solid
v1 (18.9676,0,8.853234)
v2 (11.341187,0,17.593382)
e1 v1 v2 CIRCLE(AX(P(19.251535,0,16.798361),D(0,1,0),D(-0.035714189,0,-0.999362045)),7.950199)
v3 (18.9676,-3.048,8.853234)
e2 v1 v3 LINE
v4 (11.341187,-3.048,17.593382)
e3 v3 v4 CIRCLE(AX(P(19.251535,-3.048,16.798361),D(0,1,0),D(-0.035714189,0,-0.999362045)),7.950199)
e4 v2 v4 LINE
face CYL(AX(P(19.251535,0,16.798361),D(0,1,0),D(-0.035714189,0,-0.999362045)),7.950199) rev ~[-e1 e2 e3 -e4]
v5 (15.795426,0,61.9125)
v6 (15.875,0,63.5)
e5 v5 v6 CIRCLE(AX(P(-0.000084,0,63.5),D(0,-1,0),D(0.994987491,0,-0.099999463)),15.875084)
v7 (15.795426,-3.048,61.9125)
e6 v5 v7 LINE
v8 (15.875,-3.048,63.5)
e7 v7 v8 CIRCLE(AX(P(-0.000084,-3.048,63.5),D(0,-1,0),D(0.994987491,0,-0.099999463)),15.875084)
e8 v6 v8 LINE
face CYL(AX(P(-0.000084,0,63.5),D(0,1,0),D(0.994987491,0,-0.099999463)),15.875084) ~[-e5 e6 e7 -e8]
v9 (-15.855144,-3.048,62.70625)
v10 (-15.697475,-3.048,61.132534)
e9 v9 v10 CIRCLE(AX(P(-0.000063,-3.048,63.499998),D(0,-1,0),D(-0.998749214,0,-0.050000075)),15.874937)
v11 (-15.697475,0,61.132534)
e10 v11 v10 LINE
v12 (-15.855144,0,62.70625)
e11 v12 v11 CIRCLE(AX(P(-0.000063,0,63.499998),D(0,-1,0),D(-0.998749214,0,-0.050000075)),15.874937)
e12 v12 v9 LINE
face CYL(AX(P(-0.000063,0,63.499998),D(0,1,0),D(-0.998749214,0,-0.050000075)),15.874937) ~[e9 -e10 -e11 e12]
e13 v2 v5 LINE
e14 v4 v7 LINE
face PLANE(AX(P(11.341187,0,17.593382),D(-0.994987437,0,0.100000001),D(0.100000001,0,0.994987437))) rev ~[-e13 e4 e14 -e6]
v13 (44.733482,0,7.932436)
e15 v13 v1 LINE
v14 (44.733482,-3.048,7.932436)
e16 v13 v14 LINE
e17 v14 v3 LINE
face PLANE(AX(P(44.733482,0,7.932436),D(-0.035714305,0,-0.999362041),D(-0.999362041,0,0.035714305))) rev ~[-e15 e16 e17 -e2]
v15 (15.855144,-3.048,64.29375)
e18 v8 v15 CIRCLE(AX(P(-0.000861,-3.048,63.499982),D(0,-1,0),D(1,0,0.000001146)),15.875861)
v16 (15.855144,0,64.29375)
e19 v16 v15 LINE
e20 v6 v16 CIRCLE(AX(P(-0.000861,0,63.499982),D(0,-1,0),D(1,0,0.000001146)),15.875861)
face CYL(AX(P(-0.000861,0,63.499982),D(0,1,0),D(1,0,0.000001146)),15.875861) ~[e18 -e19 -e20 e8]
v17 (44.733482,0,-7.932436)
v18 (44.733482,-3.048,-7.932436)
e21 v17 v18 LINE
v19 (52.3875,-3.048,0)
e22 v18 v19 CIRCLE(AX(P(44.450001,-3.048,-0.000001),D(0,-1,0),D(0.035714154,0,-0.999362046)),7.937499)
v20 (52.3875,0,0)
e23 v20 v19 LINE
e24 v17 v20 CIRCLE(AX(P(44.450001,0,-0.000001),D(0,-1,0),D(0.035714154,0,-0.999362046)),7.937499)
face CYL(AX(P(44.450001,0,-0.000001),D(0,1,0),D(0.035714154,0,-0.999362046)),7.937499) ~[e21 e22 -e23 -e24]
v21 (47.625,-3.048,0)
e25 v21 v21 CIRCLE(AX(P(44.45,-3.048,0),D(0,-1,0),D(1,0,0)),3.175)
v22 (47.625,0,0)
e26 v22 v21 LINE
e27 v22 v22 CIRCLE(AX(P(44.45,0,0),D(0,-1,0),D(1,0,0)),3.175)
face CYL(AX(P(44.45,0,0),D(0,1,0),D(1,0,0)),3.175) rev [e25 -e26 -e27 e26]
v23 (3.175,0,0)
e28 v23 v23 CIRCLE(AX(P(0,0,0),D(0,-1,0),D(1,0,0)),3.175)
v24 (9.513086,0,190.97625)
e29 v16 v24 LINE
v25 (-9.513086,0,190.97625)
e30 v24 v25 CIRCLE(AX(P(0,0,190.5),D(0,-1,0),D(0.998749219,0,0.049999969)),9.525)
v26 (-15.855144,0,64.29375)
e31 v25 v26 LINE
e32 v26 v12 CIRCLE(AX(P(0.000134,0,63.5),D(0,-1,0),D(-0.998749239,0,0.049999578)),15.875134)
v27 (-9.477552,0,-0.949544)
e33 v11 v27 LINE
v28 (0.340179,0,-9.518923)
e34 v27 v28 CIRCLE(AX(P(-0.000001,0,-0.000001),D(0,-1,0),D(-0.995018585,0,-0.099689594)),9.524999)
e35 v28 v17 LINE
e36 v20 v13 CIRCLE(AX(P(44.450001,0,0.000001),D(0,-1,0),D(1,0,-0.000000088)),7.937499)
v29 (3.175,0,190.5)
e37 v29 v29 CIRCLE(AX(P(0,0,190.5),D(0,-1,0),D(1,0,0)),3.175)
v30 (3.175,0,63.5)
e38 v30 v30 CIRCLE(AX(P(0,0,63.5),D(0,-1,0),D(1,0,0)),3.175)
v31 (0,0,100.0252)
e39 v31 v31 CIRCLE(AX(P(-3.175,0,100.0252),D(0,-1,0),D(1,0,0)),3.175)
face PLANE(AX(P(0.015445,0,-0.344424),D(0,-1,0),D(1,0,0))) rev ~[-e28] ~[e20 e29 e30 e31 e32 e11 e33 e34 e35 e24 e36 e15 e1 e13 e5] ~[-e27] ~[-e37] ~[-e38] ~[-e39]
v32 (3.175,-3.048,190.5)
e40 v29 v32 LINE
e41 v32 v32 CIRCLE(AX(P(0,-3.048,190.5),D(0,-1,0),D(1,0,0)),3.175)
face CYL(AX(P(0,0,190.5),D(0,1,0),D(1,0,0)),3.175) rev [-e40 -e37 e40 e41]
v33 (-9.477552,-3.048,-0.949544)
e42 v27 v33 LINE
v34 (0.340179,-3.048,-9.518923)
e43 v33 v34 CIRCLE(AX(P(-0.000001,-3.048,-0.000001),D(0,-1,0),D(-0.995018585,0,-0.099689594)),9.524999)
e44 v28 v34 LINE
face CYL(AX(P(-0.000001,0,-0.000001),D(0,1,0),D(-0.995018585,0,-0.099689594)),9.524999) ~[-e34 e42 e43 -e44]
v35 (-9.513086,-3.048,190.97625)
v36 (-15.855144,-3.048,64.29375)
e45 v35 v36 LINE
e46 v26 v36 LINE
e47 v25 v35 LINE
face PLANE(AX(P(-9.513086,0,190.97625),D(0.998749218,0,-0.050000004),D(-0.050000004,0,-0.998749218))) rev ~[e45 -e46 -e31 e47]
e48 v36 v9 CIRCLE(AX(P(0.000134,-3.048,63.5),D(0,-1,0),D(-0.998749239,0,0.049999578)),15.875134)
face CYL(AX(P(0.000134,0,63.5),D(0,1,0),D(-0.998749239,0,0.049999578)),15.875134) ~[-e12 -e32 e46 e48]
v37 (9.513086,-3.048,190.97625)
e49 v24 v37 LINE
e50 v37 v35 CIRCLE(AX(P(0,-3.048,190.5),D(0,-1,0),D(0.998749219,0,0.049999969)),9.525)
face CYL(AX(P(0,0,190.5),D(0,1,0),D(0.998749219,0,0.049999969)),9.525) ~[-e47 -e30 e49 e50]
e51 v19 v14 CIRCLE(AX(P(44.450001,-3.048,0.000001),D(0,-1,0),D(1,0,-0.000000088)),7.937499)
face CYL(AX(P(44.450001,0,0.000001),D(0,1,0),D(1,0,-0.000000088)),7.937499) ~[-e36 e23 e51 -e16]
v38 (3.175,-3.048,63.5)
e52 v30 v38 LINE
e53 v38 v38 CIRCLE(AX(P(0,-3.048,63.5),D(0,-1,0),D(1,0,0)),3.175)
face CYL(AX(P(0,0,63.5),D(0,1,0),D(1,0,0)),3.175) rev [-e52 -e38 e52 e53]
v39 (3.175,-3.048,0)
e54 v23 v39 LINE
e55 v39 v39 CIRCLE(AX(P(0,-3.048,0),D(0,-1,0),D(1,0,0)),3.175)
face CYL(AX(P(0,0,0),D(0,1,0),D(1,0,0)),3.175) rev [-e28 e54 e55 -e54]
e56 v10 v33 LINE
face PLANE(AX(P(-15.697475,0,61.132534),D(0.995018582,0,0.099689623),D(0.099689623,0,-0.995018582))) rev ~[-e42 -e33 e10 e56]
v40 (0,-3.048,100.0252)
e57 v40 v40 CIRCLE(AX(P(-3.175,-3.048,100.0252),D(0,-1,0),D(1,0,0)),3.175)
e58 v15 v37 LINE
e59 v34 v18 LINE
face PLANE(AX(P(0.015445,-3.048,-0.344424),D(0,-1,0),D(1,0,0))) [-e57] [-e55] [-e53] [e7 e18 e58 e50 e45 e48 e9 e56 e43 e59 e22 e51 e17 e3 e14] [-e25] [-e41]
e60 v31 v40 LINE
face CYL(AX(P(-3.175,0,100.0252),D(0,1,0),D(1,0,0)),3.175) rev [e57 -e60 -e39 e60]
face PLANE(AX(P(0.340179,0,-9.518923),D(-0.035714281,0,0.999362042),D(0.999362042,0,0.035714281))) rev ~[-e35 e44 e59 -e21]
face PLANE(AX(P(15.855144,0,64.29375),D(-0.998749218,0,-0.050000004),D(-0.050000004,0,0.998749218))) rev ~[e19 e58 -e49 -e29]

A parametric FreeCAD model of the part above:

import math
import FreeCAD as App
import Part
import Sketcher
from FreeCAD import Vector
Q = App.Units.Quantity

doc = App.newDocument("Part")
params = doc.addObject("Spreadsheet::Sheet", "Params")
for row, (alias, value) in enumerate([
    ("sketch1_diameter", "0.25 in"),
    ("sketch1_diameter2", "0.25 in"),
    ("sketch1_diameter3", "0.25 in"),
    ("sketch1_diameter4", "0.25 in"),
    ("sketch1_diameter5", "0.25 in"),
    ("pad1_length", "0.12 in"),
], start=1):
    params.set(f"A{row}", alias)
    params.set(f"B{row}", "=" + value)
    params.setAlias(f"B{row}", alias)

body = doc.addObject("PartDesign::Body", "Body")

sketch1 = doc.addObject("Sketcher::SketchObject", "Sketch")
body.addObject(sketch1)
sketch1.AttachmentSupport = (doc.XZ_Plane, [""])
sketch1.MapMode = "FlatFace"
sketch1.addGeometry(Part.ArcOfCircle(Part.Circle(Vector(-0.000001, -0.000001, 0), Vector(0, 0, 1), 9.524999), math.radians(-174.278704), math.radians(-87.953278)), False)
sketch1.addGeometry(Part.LineSegment(Vector(0.340179, -9.518923, 0), Vector(44.733482, -7.932436, 0)), False)
sketch1.addGeometry(Part.ArcOfCircle(Part.Circle(Vector(44.450001, -0.000001, 0), Vector(0, 0, 1), 7.937499), math.radians(-87.953294), math.radians(0.000005)), False)
sketch1.addGeometry(Part.ArcOfCircle(Part.Circle(Vector(44.450001, 0.000001, 0), Vector(0, 0, 1), 7.937499), math.radians(-0.000005), math.radians(87.953294)), False)
sketch1.addGeometry(Part.LineSegment(Vector(44.733482, 7.932436, 0), Vector(18.9676, 8.853234, 0)), False)
sketch1.addGeometry(Part.ArcOfCircle(Part.Circle(Vector(19.251535, 16.798361, 0), Vector(0, 0, 1), 7.950199), math.radians(174.260822), math.radians(267.953292)), False)
sketch1.addGeometry(Part.LineSegment(Vector(11.341187, 17.593382, 0), Vector(15.795426, 61.9125, 0)), False)
sketch1.addGeometry(Part.ArcOfCircle(Part.Circle(Vector(-0.000084, 63.5, 0), Vector(0, 0, 1), 15.875084), math.radians(-5.73914), math.radians(0)), False)
sketch1.addGeometry(Part.ArcOfCircle(Part.Circle(Vector(-0.000861, 63.499982, 0), Vector(0, 0, 1), 15.875861), math.radians(0.000066), math.radians(2.865894)), False)
sketch1.addGeometry(Part.LineSegment(Vector(15.855144, 64.29375, 0), Vector(9.513086, 190.97625, 0)), False)
sketch1.addGeometry(Part.ArcOfCircle(Part.Circle(Vector(0, 190.5, 0), Vector(0, 0, 1), 9.525), math.radians(2.865982), math.radians(177.134018)), False)
sketch1.addGeometry(Part.LineSegment(Vector(-9.513086, 190.97625, 0), Vector(-15.855144, 64.29375, 0)), False)
sketch1.addGeometry(Part.ArcOfCircle(Part.Circle(Vector(0.000134, 63.5, 0), Vector(0, 0, 1), 15.875134), math.radians(177.13404), math.radians(182.86596)), False)
sketch1.addGeometry(Part.ArcOfCircle(Part.Circle(Vector(-0.000063, 63.499998, 0), Vector(0, 0, 1), 15.874937), math.radians(-177.134012), math.radians(-171.423361)), False)
sketch1.addGeometry(Part.LineSegment(Vector(-15.697475, 61.132534, 0), Vector(-9.477552, -0.949544, 0)), False)
sketch1.addGeometry(Part.Circle(Vector(0, 0, 0), Vector(0, 0, 1), 3.175), False)
sketch1.addGeometry(Part.Circle(Vector(0, 63.5, 0), Vector(0, 0, 1), 3.175), False)
sketch1.addGeometry(Part.Circle(Vector(44.45, 0, 0), Vector(0, 0, 1), 3.175), False)
sketch1.addGeometry(Part.Circle(Vector(-3.175, 100.0252, 0), Vector(0, 0, 1), 3.175), False)
sketch1.addGeometry(Part.Circle(Vector(0, 190.5, 0), Vector(0, 0, 1), 3.175), False)
sketch1.addConstraint(Sketcher.Constraint("Coincident", 0, 2, 1, 1))
sketch1.addConstraint(Sketcher.Constraint("Coincident", 1, 2, 2, 1))
sketch1.addConstraint(Sketcher.Constraint("Coincident", 2, 2, 3, 1))
sketch1.addConstraint(Sketcher.Constraint("Coincident", 3, 2, 4, 1))
sketch1.addConstraint(Sketcher.Constraint("Coincident", 4, 2, 5, 2))
sketch1.addConstraint(Sketcher.Constraint("Coincident", 5, 1, 6, 1))
sketch1.addConstraint(Sketcher.Constraint("Coincident", 6, 2, 7, 1))
sketch1.addConstraint(Sketcher.Constraint("Coincident", 7, 2, 8, 1))
sketch1.addConstraint(Sketcher.Constraint("Coincident", 8, 2, 9, 1))
sketch1.addConstraint(Sketcher.Constraint("Coincident", 9, 2, 10, 1))
sketch1.addConstraint(Sketcher.Constraint("Coincident", 10, 2, 11, 1))
sketch1.addConstraint(Sketcher.Constraint("Coincident", 11, 2, 12, 1))
sketch1.addConstraint(Sketcher.Constraint("Coincident", 12, 2, 13, 1))
sketch1.addConstraint(Sketcher.Constraint("Coincident", 13, 2, 14, 1))
sketch1.addConstraint(Sketcher.Constraint("Coincident", 14, 2, 0, 1))
sketch1.addConstraint(Sketcher.Constraint("Coincident", 0, 3, -1, 1))
sketch1.addConstraint(Sketcher.Constraint("Coincident", 15, 3, -1, 1))
sketch1.addConstraint(Sketcher.Constraint("Coincident", 3, 3, 2, 3))
sketch1.addConstraint(Sketcher.Constraint("Coincident", 17, 3, 2, 3))
sketch1.addConstraint(Sketcher.Constraint("Coincident", 19, 3, 10, 3))
sketch1.addConstraint(Sketcher.Constraint("PointOnObject", 2, 3, -1))
sketch1.addConstraint(Sketcher.Constraint("PointOnObject", 10, 3, -2))
sketch1.addConstraint(Sketcher.Constraint("PointOnObject", 16, 3, -2))
sketch1.addConstraint(Sketcher.Constraint("PointOnObject", 2, 2, -1))
sketch1.addConstraint(Sketcher.Constraint("Diameter", 15, Q("0.25 in")))
sketch1.addConstraint(Sketcher.Constraint("Diameter", 16, Q("0.25 in")))
sketch1.addConstraint(Sketcher.Constraint("Diameter", 17, Q("0.25 in")))
sketch1.addConstraint(Sketcher.Constraint("Diameter", 18, Q("0.25 in")))
sketch1.addConstraint(Sketcher.Constraint("Diameter", 19, Q("0.25 in")))
sketch1.addConstraint(Sketcher.Constraint("Radius", 0, Q("0.375 in")))
sketch1.addConstraint(Sketcher.Constraint("Radius", 2, Q("0.3125 in")))
sketch1.addConstraint(Sketcher.Constraint("Radius", 5, Q("0.313 in")))
sketch1.addConstraint(Sketcher.Constraint("Radius", 10, Q("0.375 in")))
sketch1.addConstraint(Sketcher.Constraint("DistanceY", 7, 3, 10, 3, Q("5 in")))
sketch1.addConstraint(Sketcher.Constraint("DistanceY", 16, 3, 19, 3, Q("5 in")))
sketch1.addConstraint(Sketcher.Constraint("DistanceY", 12, 3, 19, 3, Q("5 in")))
sketch1.addConstraint(Sketcher.Constraint("DistanceY", -1, 1, 7, 3, Q("2.5 in")))
sketch1.addConstraint(Sketcher.Constraint("DistanceY", -1, 1, 13, 3, Q("2.4999999 in")))
sketch1.addConstraint(Sketcher.Constraint("DistanceY", -1, 1, 7, 2, Q("2.5 in")))
sketch1.addConstraint(Sketcher.Constraint("DistanceX", -1, 1, 2, 3, Q("1.75 in")))
sketch1.addConstraint(Sketcher.Constraint("DistanceX", 18, 3, -1, 1, Q("0.125 in")))
sketch1.addConstraint(Sketcher.Constraint("DistanceY", -1, 1, 18, 3, Q("3.938 in")))
sketch1.addConstraint(Sketcher.Constraint("DistanceY", -1, 1, 6, 2, Q("2.4375 in")))
sketch1.addConstraint(Sketcher.Constraint("DistanceX", -1, 1, 7, 2, Q("0.625 in")))
sketch1.addConstraint(Sketcher.Constraint("DistanceY", -1, 1, 8, 2, Q("2.53125 in")))
sketch1.addConstraint(Sketcher.Constraint("DistanceY", -1, 1, 11, 2, Q("2.53125 in")))
sketch1.addConstraint(Sketcher.Constraint("DistanceY", -1, 1, 12, 2, Q("2.46875 in")))
sketch1.addConstraint(Sketcher.Constraint("Radius", 8, Q("15.875861 mm")))
sketch1.addConstraint(Sketcher.Constraint("Radius", 7, Q("15.875084 mm")))
sketch1.addConstraint(Sketcher.Constraint("Radius", 12, Q("15.875134 mm")))
sketch1.addConstraint(Sketcher.Constraint("Radius", 13, Q("15.874937 mm")))
sketch1.addConstraint(Sketcher.Constraint("DistanceY", 5, 3, 5, 1, Q("0.0313 in")))
sketch1.addConstraint(Sketcher.Constraint("DistanceY", 8, 2, 9, 2, Q("4.9875 in")))
sketch1.addConstraint(Sketcher.Constraint("DistanceX", -1, 1, 4, 2, Q("18.9676 mm")))
sketch1.addConstraint(Sketcher.Constraint("DistanceX", 12, 3, 5, 3, Q("19.251401 mm")))
sketch1.addConstraint(Sketcher.Constraint("DistanceX", 8, 3, 13, 3, Q("0.000799 mm")))
sketch1.addConstraint(Sketcher.Constraint("Distance", 4, Q("25.78233 mm")))
sketch1.addConstraint(Sketcher.Constraint("Distance", 6, Q("44.54239 mm")))
sketch1.addConstraint(Sketcher.Constraint("Distance", 11, Q("126.841151 mm")))
sketch1.addConstraint(Sketcher.Constraint("DistanceY", -1, 1, 8, 3, Q("63.499982 mm")))
sketch1.addConstraint(Sketcher.Constraint("DistanceX", -1, 1, 0, 2, Q("0.340179 mm")))
sketch1.addConstraint(Sketcher.Constraint("DistanceX", 14, 2, -1, 1, Q("9.477552 mm")))
sketch1.addConstraint(Sketcher.Constraint("DistanceX", 2, 3, 1, 2, Q("0.283481 mm")))
sketch1.addConstraint(Sketcher.Constraint("DistanceX", 12, 2, 13, 2, Q("0.157669 mm")))
sketch1.setExpression("Constraints[24]", "Params.sketch1_diameter")
sketch1.setExpression("Constraints[25]", "Params.sketch1_diameter2")
sketch1.setExpression("Constraints[26]", "Params.sketch1_diameter3")
sketch1.setExpression("Constraints[27]", "Params.sketch1_diameter4")
sketch1.setExpression("Constraints[28]", "Params.sketch1_diameter5")
pad1 = doc.addObject("PartDesign::Pad", "Pad")
body.addObject(pad1)
pad1.Profile = sketch1
pad1.setExpression("Length", "Params.pad1_length")

doc.recompute()
